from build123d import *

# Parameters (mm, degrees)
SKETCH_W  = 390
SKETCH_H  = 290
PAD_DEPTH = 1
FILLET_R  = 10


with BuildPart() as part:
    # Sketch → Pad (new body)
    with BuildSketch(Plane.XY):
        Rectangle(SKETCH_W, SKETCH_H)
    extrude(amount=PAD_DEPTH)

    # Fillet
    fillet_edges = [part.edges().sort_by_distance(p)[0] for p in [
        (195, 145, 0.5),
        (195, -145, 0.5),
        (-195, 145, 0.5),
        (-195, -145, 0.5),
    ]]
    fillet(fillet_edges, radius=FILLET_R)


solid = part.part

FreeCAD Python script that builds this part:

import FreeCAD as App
import Part
import Sketcher


def edges_at(feature, points):
    """Names of the edges that pass closest to the given points."""
    edges = feature.Shape.Edges
    near = lambda p: min(range(len(edges)), key=lambda i: edges[i].distToShape(Part.Vertex(*p))[0])
    return sorted({f"Edge{near(p) + 1}" for p in points})

doc = App.newDocument("Part")
body = doc.addObject("PartDesign::Body", "Body")

# Sketch on XY plane
sketch1 = doc.addObject("Sketcher::SketchObject", "Sketch")
body.addObject(sketch1)
sketch1.AttachmentSupport = (doc.XY_Plane, [""])
sketch1.MapMode = "FlatFace"
sketch1.addGeometry(Part.LineSegment(App.Vector(-195, 145, 0), App.Vector(-195, -145, 0)), False)
sketch1.addGeometry(Part.LineSegment(App.Vector(-195, -145, 0), App.Vector(195, -145, 0)), False)
sketch1.addGeometry(Part.LineSegment(App.Vector(195, -145, 0), App.Vector(195, 145, 0)), False)
sketch1.addGeometry(Part.LineSegment(App.Vector(195, 145, 0), App.Vector(-195, 145, 0)), False)
sketch1.addConstraint(Sketcher.Constraint("Coincident", 0, 2, 1, 1))
sketch1.addConstraint(Sketcher.Constraint("Coincident", 1, 2, 2, 1))
sketch1.addConstraint(Sketcher.Constraint("Coincident", 2, 2, 3, 1))
sketch1.addConstraint(Sketcher.Constraint("Coincident", 3, 2, 0, 1))
sketch1.addConstraint(Sketcher.Constraint("Vertical", 0))
sketch1.addConstraint(Sketcher.Constraint("Horizontal", 1))
sketch1.addConstraint(Sketcher.Constraint("Vertical", 2))
sketch1.addConstraint(Sketcher.Constraint("Horizontal", 3))
sketch1.addConstraint(Sketcher.Constraint("Symmetric", 0, 2, 2, 2, -1, 1))
sketch1.addConstraint(Sketcher.Constraint("DistanceX", 1, 1, 1, 2, 390.0))
sketch1.addConstraint(Sketcher.Constraint("DistanceY", 0, 2, 0, 1, 290.0))
pad1 = doc.addObject("PartDesign::Pad", "Pad")
body.addObject(pad1)
pad1.Profile = sketch1
pad1.Length = 1
doc.recompute()

fillet = doc.addObject("PartDesign::Fillet", "Fillet")
body.addObject(fillet)
fillet.Base = (pad1, edges_at(pad1, [
    (195, 145, 0.5),
    (195, -145, 0.5),
    (-195, 145, 0.5),
    (-195, -145, 0.5),
]))
fillet.Radius = 10

doc.recompute()
